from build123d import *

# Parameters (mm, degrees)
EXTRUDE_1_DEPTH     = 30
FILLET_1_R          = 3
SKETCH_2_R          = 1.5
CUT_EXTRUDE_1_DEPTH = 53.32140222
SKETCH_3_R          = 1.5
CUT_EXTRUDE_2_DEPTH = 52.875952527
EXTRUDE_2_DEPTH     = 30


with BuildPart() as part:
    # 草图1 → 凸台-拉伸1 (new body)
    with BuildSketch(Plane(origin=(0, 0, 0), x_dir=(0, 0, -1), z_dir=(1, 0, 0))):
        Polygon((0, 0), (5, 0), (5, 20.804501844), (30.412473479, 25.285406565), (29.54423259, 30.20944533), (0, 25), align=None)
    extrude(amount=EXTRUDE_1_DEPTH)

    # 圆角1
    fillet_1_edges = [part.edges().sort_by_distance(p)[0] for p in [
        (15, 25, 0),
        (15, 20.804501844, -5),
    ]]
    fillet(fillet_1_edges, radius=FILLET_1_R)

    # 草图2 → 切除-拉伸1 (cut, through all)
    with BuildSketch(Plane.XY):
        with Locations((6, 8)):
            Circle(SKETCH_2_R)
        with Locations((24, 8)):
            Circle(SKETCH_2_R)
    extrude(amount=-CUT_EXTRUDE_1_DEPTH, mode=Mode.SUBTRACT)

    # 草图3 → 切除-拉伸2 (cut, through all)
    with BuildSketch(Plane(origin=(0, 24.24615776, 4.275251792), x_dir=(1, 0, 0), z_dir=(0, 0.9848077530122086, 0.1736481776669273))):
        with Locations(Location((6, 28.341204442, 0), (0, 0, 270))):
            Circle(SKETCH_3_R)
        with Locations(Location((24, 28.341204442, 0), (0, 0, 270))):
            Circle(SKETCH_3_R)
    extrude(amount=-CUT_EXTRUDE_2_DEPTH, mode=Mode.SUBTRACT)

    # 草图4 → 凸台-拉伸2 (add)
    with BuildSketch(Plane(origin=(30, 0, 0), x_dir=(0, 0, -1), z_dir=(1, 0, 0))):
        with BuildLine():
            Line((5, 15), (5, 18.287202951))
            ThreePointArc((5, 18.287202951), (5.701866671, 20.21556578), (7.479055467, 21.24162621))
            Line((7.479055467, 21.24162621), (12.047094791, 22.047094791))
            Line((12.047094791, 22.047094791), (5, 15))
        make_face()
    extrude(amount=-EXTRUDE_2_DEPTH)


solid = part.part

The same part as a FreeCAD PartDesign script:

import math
import FreeCAD as App
import Part
import Sketcher

V = App.Vector
Q = App.Units.Quantity


def edges_at(feature, points):
    """Names of the edges that pass closest to the given points."""
    edges = feature.Shape.Edges
    near = lambda p: min(range(len(edges)), key=lambda i: edges[i].distToShape(Part.Vertex(*p))[0])
    return sorted({f"Edge{near(p) + 1}" for p in points})

doc = App.newDocument("Part")
body = doc.addObject("PartDesign::Body", "Body")

sketch1 = body.newObject("Sketcher::SketchObject", "Sketch")
sketch1.AttachmentSupport = (doc.getObject("YZ_Plane"), [""])
sketch1.MapMode = "FlatFace"
sketch1.addGeometry(Part.LineSegment(V(0, 0, 0), V(0, -5, 0)), False)
sketch1.addGeometry(Part.LineSegment(V(0, -5, 0), V(20.804502, -5, 0)), False)
sketch1.addGeometry(Part.LineSegment(V(20.804502, -5, 0), V(25.285407, -30.412473, 0)), False)
sketch1.addGeometry(Part.LineSegment(V(25.285407, -30.412473, 0), V(30.209445, -29.544233, 0)), False)
sketch1.addGeometry(Part.LineSegment(V(30.209445, -29.544233, 0), V(25, 0, 0)), False)
sketch1.addGeometry(Part.LineSegment(V(25, 0, 0), V(0, 0, 0)), False)
sketch1.addConstraint(Sketcher.Constraint("Coincident", 0, 2, 1, 1))
sketch1.addConstraint(Sketcher.Constraint("Coincident", 1, 2, 2, 1))
sketch1.addConstraint(Sketcher.Constraint("Coincident", 2, 2, 3, 1))
sketch1.addConstraint(Sketcher.Constraint("Coincident", 3, 2, 4, 1))
sketch1.addConstraint(Sketcher.Constraint("Coincident", 4, 2, 5, 1))
sketch1.addConstraint(Sketcher.Constraint("Coincident", 5, 2, 0, 1))
sketch1.addConstraint(Sketcher.Constraint("Vertical", 0))
sketch1.addConstraint(Sketcher.Constraint("Horizontal", 1))
sketch1.addConstraint(Sketcher.Constraint("Horizontal", 5))
sketch1.addConstraint(Sketcher.Constraint("Coincident", 5, 2, -1, 1))
sketch1.addConstraint(Sketcher.Constraint("Perpendicular", 2, 3))
sketch1.addConstraint(Sketcher.Constraint("Perpendicular", 3, 4))
sketch1.addConstraint(Sketcher.Constraint("DistanceX", 5, 2, 5, 1, Q("25 mm")))
sketch1.addConstraint(Sketcher.Constraint("DistanceY", 0, 2, 0, 1, Q("5 mm")))
sketch1.addConstraint(Sketcher.Constraint("Angle", 2, Q("-80 deg")))
sketch1.addConstraint(Sketcher.Constraint("Distance", 3, Q("5 mm")))
sketch1.addConstraint(Sketcher.Constraint("Distance", 4, Q("30 mm")))
pad1 = body.newObject("PartDesign::Pad", "Pad")
pad1.Profile = sketch1
pad1.Length = 30
doc.recompute()

fillet = body.newObject("PartDesign::Fillet", "Fillet")
fillet.Base = (pad1, edges_at(pad1, [(15, 25, 0), (15, 20.805, -5)]))
fillet.Radius = 3

sketch2 = body.newObject("Sketcher::SketchObject", "Sketch001")
sketch2.AttachmentSupport = (doc.getObject("XY_Plane"), [""])
sketch2.MapMode = "FlatFace"
sketch2.addGeometry(Part.Circle(V(6, 8, 0), V(0, 0, 1), 1.5), False)
sketch2.addGeometry(Part.Circle(V(24, 8, 0), V(0, 0, 1), 1.5), False)
sketch2.addConstraint(Sketcher.Constraint("Equal", 0, 1))
sketch2.addConstraint(Sketcher.Constraint("Horizontal", 0, 3, 1, 3))
sketch2.addConstraint(Sketcher.Constraint("Diameter", 0, Q("3 mm")))
sketch2.addConstraint(Sketcher.Constraint("DistanceX", -1, 1, 0, 3, Q("6 mm")))
sketch2.addConstraint(Sketcher.Constraint("DistanceY", -1, 1, 0, 3, Q("8 mm")))
sketch2.addConstraint(Sketcher.Constraint("DistanceX", -1, 1, 1, 3, Q("24 mm")))
pocket1 = body.newObject("PartDesign::Pocket", "Pocket")
pocket1.Profile = sketch2
pocket1.Type = "ThroughAll"

sketch3 = body.newObject("Sketcher::SketchObject", "Sketch002")
sketch3.Placement = App.Placement(V(0, 24.246158, 4.275252), App.Rotation(V(1, 0, 0), V(0, 0.173648178, -0.984807753), V(0, 0.984807753, 0.173648178), "ZXY"))
sketch3.addGeometry(Part.Circle(V(6, 28.341204, 0), V(0, 0, 1), 1.5), False)
sketch3.addGeometry(Part.Circle(V(24, 28.341204, 0), V(0, 0, 1), 1.5), False)
sketch3.addConstraint(Sketcher.Constraint("Equal", 0, 1))
sketch3.addConstraint(Sketcher.Constraint("Horizontal", 0, 3, 1, 3))
sketch3.addConstraint(Sketcher.Constraint("Diameter", 0, Q("3 mm")))
sketch3.addConstraint(Sketcher.Constraint("DistanceX", -1, 1, 0, 3, Q("6 mm")))
sketch3.addConstraint(Sketcher.Constraint("DistanceX", -1, 1, 1, 3, Q("24 mm")))
sketch3.addConstraint(Sketcher.Constraint("DistanceY", -1, 1, 0, 3, Q("28.341204 mm")))
pocket2 = body.newObject("PartDesign::Pocket", "Pocket001")
pocket2.Profile = sketch3
pocket2.Type = "ThroughAll"

sketch4 = body.newObject("Sketcher::SketchObject", "Sketch003")
sketch4.AttachmentSupport = (doc.getObject("YZ_Plane"), [""])
sketch4.MapMode = "FlatFace"
sketch4.AttachmentOffset = App.Placement(V(0, 0, 30), App.Rotation())
sketch4.addGeometry(Part.LineSegment(V(18.287203, -5, 0), V(15, -5, 0)), False)
sketch4.addGeometry(Part.LineSegment(V(15, -5, 0), V(22.047095, -12.047095, 0)), False)
sketch4.addGeometry(Part.LineSegment(V(22.047095, -12.047095, 0), V(21.241626, -7.479055, 0)), False)
sketch4.addGeometry(Part.ArcOfCircle(Part.Circle(V(18.287203, -8, 0), V(0, 0, 1), 3), math.radians(10), math.radians(90)), False)
sketch4.addConstraint(Sketcher.Constraint("Coincident", 0, 2, 1, 1))
sketch4.addConstraint(Sketcher.Constraint("Coincident", 1, 2, 2, 1))
sketch4.addConstraint(Sketcher.Constraint("Tangent", 2, 2, 3, 1))
sketch4.addConstraint(Sketcher.Constraint("Tangent", 3, 2, 0, 1))
sketch4.addConstraint(Sketcher.Constraint("Horizontal", 0))
sketch4.addConstraint(Sketcher.Constraint("Radius", 3, Q("3 mm")))
sketch4.addConstraint(Sketcher.Constraint("Angle", 1, Q("-45 deg")))
sketch4.addConstraint(Sketcher.Constraint("Angle", 2, Q("100 deg")))
sketch4.addConstraint(Sketcher.Constraint("DistanceY", 3, 3, -1, 1, Q("8 mm")))
sketch4.addConstraint(Sketcher.Constraint("DistanceX", -1, 1, 0, 2, Q("15 mm")))
sketch4.addConstraint(Sketcher.Constraint("Distance", 2, Q("4.638509 mm")))
pad2 = body.newObject("PartDesign::Pad", "Pad001")
pad2.Profile = sketch4
pad2.Length = 30
pad2.Reversed = True

doc.recompute()
